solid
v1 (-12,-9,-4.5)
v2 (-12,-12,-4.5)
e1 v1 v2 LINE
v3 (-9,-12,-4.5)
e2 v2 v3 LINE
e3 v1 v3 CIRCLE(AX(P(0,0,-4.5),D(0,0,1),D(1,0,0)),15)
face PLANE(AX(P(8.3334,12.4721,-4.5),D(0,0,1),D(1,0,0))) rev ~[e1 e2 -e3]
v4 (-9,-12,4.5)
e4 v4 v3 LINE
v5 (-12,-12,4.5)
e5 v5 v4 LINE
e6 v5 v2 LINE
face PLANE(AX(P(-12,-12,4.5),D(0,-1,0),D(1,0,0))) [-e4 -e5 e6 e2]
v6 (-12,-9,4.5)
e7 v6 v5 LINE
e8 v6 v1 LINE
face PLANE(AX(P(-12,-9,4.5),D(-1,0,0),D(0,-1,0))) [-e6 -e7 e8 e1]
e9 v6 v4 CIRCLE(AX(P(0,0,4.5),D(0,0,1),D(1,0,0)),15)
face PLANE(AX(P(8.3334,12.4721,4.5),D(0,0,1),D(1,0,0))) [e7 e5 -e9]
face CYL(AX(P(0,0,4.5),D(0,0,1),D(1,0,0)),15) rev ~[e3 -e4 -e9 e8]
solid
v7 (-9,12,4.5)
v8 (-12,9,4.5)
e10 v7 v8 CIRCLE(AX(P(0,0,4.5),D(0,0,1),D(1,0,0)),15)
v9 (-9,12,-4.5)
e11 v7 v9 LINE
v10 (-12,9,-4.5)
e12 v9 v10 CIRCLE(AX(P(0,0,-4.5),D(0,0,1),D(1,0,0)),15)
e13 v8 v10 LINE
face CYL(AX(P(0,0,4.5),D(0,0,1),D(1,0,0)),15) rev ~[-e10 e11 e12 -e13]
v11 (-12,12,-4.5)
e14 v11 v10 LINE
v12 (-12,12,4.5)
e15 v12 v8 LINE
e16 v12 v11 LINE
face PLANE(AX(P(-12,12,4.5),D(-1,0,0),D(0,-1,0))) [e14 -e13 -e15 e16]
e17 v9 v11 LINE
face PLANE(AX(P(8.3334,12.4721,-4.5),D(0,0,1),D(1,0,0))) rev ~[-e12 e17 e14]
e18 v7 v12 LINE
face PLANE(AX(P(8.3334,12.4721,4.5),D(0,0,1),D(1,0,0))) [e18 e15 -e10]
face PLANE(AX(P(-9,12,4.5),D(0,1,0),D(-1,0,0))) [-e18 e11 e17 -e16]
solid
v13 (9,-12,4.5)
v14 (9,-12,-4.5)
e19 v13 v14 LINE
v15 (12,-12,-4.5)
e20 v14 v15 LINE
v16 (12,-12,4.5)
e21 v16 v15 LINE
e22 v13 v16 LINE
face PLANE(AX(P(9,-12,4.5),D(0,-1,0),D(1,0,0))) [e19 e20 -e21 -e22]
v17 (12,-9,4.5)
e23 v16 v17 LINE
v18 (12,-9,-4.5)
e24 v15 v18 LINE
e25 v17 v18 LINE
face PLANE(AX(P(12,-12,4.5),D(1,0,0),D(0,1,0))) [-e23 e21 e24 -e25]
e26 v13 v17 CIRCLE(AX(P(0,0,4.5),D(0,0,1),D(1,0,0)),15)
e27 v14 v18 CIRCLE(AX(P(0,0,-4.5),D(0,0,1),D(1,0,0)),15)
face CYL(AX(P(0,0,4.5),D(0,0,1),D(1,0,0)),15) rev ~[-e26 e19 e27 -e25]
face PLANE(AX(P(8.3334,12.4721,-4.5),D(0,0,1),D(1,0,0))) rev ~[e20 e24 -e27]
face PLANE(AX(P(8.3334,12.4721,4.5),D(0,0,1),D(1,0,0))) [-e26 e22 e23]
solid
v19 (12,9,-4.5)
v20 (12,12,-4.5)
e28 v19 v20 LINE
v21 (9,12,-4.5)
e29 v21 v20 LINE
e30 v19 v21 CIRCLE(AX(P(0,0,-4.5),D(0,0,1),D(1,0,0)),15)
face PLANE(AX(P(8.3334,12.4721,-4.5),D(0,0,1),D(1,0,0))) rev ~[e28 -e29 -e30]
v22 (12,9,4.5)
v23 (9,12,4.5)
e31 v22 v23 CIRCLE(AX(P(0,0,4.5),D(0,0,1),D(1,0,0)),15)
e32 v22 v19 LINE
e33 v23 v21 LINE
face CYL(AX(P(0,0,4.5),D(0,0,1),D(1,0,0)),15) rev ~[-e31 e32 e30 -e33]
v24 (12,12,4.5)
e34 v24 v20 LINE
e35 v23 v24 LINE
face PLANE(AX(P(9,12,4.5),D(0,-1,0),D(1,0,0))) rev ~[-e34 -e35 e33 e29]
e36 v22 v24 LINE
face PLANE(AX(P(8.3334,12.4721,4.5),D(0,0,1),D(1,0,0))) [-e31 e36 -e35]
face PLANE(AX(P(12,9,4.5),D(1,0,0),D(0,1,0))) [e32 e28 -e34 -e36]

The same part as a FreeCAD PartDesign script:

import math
import FreeCAD as App
import Part
import Sketcher
from FreeCAD import Vector

doc = App.newDocument("Part")
body = doc.addObject("PartDesign::Body", "Body")
body.AllowCompound = True

# Sketch on XY plane
sketch1 = body.newObject("Sketcher::SketchObject", "Sketch")
sketch1.AttachmentSupport = (doc.getObject("XY_Plane"), [""])
sketch1.MapMode = "FlatFace"
sketch1.AttachmentOffset = App.Placement(Vector(0, 0, 4.5), App.Rotation())
sketch1.addGeometry([
    Part.ArcOfCircle(Part.Circle(Vector(0, 0, 0), Vector(0, 0, 1), 15), math.radians(36.87), math.radians(53.13)),  # 0
    Part.LineSegment(Vector(12, 9, 0), Vector(12, 12, 0)),  # 1
    Part.LineSegment(Vector(12, 12, 0), Vector(9, 12, 0)),  # 2
    Part.LineSegment(Vector(12, -12, 0), Vector(12, -9, 0)),  # 3
    Part.ArcOfCircle(Part.Circle(Vector(0, 0, 0), Vector(0, 0, 1), 15), math.radians(-53.13), math.radians(-36.87)),  # 4
    Part.LineSegment(Vector(9, -12, 0), Vector(12, -12, 0)),  # 5
    Part.ArcOfCircle(Part.Circle(Vector(0, 0, 0), Vector(0, 0, 1), 15), math.radians(126.87), math.radians(143.13)),  # 6
    Part.LineSegment(Vector(-9, 12, 0), Vector(-12, 12, 0)),  # 7
    Part.LineSegment(Vector(-12, 12, 0), Vector(-12, 9, 0)),  # 8
    Part.LineSegment(Vector(-12, -12, 0), Vector(-9, -12, 0)),  # 9
    Part.ArcOfCircle(Part.Circle(Vector(0, 0, 0), Vector(0, 0, 1), 15), math.radians(-143.13), math.radians(-126.87)),  # 10
    Part.LineSegment(Vector(-12, -9, 0), Vector(-12, -12, 0)),  # 11
], False)
sketch1.addConstraint([
    Sketcher.Constraint("Coincident", 0, 1, 1, 1),
    Sketcher.Constraint("Coincident", 1, 2, 2, 1),
    Sketcher.Constraint("Coincident", 2, 2, 0, 2),
    Sketcher.Constraint("Coincident", 3, 2, 4, 2),
    Sketcher.Constraint("Coincident", 4, 1, 5, 1),
    Sketcher.Constraint("Coincident", 5, 2, 3, 1),
    Sketcher.Constraint("Coincident", 6, 1, 7, 1),
    Sketcher.Constraint("Coincident", 7, 2, 8, 1),
    Sketcher.Constraint("Coincident", 8, 2, 6, 2),
    Sketcher.Constraint("Coincident", 9, 2, 10, 2),
    Sketcher.Constraint("Coincident", 10, 1, 11, 1),
    Sketcher.Constraint("Coincident", 11, 2, 9, 1),
    Sketcher.Constraint("Vertical", 1),
    Sketcher.Constraint("Horizontal", 2),
    Sketcher.Constraint("Vertical", 3),
    Sketcher.Constraint("Horizontal", 5),
    Sketcher.Constraint("Horizontal", 7),
    Sketcher.Constraint("Vertical", 8),
    Sketcher.Constraint("Horizontal", 9),
    Sketcher.Constraint("Vertical", 11),
    Sketcher.Constraint("Coincident", 0, 3, -1, 1),
    Sketcher.Constraint("Coincident", 4, 3, -1, 1),
    Sketcher.Constraint("Coincident", 6, 3, -1, 1),
    Sketcher.Constraint("Coincident", 10, 3, -1, 1),
    Sketcher.Constraint("Equal", 0, 4),
    Sketcher.Constraint("Equal", 4, 6),
    Sketcher.Constraint("Equal", 6, 10),
    Sketcher.Constraint("Symmetric", 5, 2, 7, 2, -1, 1),
    Sketcher.Constraint("Symmetric", 1, 2, 11, 2, -1, 1),
    Sketcher.Constraint("Symmetric", 1, 2, 7, 2, -2),
    Sketcher.Constraint("Equal", 9, 1),
    Sketcher.Constraint("Radius", 0, 15.0),
    Sketcher.Constraint("DistanceX", -1, 1, 0, 1, 12.0),
])
pad1 = body.newObject("PartDesign::Pad", "Pad")
pad1.Profile = sketch1
pad1.Length = 9
pad1.Reversed = True

doc.recompute()
